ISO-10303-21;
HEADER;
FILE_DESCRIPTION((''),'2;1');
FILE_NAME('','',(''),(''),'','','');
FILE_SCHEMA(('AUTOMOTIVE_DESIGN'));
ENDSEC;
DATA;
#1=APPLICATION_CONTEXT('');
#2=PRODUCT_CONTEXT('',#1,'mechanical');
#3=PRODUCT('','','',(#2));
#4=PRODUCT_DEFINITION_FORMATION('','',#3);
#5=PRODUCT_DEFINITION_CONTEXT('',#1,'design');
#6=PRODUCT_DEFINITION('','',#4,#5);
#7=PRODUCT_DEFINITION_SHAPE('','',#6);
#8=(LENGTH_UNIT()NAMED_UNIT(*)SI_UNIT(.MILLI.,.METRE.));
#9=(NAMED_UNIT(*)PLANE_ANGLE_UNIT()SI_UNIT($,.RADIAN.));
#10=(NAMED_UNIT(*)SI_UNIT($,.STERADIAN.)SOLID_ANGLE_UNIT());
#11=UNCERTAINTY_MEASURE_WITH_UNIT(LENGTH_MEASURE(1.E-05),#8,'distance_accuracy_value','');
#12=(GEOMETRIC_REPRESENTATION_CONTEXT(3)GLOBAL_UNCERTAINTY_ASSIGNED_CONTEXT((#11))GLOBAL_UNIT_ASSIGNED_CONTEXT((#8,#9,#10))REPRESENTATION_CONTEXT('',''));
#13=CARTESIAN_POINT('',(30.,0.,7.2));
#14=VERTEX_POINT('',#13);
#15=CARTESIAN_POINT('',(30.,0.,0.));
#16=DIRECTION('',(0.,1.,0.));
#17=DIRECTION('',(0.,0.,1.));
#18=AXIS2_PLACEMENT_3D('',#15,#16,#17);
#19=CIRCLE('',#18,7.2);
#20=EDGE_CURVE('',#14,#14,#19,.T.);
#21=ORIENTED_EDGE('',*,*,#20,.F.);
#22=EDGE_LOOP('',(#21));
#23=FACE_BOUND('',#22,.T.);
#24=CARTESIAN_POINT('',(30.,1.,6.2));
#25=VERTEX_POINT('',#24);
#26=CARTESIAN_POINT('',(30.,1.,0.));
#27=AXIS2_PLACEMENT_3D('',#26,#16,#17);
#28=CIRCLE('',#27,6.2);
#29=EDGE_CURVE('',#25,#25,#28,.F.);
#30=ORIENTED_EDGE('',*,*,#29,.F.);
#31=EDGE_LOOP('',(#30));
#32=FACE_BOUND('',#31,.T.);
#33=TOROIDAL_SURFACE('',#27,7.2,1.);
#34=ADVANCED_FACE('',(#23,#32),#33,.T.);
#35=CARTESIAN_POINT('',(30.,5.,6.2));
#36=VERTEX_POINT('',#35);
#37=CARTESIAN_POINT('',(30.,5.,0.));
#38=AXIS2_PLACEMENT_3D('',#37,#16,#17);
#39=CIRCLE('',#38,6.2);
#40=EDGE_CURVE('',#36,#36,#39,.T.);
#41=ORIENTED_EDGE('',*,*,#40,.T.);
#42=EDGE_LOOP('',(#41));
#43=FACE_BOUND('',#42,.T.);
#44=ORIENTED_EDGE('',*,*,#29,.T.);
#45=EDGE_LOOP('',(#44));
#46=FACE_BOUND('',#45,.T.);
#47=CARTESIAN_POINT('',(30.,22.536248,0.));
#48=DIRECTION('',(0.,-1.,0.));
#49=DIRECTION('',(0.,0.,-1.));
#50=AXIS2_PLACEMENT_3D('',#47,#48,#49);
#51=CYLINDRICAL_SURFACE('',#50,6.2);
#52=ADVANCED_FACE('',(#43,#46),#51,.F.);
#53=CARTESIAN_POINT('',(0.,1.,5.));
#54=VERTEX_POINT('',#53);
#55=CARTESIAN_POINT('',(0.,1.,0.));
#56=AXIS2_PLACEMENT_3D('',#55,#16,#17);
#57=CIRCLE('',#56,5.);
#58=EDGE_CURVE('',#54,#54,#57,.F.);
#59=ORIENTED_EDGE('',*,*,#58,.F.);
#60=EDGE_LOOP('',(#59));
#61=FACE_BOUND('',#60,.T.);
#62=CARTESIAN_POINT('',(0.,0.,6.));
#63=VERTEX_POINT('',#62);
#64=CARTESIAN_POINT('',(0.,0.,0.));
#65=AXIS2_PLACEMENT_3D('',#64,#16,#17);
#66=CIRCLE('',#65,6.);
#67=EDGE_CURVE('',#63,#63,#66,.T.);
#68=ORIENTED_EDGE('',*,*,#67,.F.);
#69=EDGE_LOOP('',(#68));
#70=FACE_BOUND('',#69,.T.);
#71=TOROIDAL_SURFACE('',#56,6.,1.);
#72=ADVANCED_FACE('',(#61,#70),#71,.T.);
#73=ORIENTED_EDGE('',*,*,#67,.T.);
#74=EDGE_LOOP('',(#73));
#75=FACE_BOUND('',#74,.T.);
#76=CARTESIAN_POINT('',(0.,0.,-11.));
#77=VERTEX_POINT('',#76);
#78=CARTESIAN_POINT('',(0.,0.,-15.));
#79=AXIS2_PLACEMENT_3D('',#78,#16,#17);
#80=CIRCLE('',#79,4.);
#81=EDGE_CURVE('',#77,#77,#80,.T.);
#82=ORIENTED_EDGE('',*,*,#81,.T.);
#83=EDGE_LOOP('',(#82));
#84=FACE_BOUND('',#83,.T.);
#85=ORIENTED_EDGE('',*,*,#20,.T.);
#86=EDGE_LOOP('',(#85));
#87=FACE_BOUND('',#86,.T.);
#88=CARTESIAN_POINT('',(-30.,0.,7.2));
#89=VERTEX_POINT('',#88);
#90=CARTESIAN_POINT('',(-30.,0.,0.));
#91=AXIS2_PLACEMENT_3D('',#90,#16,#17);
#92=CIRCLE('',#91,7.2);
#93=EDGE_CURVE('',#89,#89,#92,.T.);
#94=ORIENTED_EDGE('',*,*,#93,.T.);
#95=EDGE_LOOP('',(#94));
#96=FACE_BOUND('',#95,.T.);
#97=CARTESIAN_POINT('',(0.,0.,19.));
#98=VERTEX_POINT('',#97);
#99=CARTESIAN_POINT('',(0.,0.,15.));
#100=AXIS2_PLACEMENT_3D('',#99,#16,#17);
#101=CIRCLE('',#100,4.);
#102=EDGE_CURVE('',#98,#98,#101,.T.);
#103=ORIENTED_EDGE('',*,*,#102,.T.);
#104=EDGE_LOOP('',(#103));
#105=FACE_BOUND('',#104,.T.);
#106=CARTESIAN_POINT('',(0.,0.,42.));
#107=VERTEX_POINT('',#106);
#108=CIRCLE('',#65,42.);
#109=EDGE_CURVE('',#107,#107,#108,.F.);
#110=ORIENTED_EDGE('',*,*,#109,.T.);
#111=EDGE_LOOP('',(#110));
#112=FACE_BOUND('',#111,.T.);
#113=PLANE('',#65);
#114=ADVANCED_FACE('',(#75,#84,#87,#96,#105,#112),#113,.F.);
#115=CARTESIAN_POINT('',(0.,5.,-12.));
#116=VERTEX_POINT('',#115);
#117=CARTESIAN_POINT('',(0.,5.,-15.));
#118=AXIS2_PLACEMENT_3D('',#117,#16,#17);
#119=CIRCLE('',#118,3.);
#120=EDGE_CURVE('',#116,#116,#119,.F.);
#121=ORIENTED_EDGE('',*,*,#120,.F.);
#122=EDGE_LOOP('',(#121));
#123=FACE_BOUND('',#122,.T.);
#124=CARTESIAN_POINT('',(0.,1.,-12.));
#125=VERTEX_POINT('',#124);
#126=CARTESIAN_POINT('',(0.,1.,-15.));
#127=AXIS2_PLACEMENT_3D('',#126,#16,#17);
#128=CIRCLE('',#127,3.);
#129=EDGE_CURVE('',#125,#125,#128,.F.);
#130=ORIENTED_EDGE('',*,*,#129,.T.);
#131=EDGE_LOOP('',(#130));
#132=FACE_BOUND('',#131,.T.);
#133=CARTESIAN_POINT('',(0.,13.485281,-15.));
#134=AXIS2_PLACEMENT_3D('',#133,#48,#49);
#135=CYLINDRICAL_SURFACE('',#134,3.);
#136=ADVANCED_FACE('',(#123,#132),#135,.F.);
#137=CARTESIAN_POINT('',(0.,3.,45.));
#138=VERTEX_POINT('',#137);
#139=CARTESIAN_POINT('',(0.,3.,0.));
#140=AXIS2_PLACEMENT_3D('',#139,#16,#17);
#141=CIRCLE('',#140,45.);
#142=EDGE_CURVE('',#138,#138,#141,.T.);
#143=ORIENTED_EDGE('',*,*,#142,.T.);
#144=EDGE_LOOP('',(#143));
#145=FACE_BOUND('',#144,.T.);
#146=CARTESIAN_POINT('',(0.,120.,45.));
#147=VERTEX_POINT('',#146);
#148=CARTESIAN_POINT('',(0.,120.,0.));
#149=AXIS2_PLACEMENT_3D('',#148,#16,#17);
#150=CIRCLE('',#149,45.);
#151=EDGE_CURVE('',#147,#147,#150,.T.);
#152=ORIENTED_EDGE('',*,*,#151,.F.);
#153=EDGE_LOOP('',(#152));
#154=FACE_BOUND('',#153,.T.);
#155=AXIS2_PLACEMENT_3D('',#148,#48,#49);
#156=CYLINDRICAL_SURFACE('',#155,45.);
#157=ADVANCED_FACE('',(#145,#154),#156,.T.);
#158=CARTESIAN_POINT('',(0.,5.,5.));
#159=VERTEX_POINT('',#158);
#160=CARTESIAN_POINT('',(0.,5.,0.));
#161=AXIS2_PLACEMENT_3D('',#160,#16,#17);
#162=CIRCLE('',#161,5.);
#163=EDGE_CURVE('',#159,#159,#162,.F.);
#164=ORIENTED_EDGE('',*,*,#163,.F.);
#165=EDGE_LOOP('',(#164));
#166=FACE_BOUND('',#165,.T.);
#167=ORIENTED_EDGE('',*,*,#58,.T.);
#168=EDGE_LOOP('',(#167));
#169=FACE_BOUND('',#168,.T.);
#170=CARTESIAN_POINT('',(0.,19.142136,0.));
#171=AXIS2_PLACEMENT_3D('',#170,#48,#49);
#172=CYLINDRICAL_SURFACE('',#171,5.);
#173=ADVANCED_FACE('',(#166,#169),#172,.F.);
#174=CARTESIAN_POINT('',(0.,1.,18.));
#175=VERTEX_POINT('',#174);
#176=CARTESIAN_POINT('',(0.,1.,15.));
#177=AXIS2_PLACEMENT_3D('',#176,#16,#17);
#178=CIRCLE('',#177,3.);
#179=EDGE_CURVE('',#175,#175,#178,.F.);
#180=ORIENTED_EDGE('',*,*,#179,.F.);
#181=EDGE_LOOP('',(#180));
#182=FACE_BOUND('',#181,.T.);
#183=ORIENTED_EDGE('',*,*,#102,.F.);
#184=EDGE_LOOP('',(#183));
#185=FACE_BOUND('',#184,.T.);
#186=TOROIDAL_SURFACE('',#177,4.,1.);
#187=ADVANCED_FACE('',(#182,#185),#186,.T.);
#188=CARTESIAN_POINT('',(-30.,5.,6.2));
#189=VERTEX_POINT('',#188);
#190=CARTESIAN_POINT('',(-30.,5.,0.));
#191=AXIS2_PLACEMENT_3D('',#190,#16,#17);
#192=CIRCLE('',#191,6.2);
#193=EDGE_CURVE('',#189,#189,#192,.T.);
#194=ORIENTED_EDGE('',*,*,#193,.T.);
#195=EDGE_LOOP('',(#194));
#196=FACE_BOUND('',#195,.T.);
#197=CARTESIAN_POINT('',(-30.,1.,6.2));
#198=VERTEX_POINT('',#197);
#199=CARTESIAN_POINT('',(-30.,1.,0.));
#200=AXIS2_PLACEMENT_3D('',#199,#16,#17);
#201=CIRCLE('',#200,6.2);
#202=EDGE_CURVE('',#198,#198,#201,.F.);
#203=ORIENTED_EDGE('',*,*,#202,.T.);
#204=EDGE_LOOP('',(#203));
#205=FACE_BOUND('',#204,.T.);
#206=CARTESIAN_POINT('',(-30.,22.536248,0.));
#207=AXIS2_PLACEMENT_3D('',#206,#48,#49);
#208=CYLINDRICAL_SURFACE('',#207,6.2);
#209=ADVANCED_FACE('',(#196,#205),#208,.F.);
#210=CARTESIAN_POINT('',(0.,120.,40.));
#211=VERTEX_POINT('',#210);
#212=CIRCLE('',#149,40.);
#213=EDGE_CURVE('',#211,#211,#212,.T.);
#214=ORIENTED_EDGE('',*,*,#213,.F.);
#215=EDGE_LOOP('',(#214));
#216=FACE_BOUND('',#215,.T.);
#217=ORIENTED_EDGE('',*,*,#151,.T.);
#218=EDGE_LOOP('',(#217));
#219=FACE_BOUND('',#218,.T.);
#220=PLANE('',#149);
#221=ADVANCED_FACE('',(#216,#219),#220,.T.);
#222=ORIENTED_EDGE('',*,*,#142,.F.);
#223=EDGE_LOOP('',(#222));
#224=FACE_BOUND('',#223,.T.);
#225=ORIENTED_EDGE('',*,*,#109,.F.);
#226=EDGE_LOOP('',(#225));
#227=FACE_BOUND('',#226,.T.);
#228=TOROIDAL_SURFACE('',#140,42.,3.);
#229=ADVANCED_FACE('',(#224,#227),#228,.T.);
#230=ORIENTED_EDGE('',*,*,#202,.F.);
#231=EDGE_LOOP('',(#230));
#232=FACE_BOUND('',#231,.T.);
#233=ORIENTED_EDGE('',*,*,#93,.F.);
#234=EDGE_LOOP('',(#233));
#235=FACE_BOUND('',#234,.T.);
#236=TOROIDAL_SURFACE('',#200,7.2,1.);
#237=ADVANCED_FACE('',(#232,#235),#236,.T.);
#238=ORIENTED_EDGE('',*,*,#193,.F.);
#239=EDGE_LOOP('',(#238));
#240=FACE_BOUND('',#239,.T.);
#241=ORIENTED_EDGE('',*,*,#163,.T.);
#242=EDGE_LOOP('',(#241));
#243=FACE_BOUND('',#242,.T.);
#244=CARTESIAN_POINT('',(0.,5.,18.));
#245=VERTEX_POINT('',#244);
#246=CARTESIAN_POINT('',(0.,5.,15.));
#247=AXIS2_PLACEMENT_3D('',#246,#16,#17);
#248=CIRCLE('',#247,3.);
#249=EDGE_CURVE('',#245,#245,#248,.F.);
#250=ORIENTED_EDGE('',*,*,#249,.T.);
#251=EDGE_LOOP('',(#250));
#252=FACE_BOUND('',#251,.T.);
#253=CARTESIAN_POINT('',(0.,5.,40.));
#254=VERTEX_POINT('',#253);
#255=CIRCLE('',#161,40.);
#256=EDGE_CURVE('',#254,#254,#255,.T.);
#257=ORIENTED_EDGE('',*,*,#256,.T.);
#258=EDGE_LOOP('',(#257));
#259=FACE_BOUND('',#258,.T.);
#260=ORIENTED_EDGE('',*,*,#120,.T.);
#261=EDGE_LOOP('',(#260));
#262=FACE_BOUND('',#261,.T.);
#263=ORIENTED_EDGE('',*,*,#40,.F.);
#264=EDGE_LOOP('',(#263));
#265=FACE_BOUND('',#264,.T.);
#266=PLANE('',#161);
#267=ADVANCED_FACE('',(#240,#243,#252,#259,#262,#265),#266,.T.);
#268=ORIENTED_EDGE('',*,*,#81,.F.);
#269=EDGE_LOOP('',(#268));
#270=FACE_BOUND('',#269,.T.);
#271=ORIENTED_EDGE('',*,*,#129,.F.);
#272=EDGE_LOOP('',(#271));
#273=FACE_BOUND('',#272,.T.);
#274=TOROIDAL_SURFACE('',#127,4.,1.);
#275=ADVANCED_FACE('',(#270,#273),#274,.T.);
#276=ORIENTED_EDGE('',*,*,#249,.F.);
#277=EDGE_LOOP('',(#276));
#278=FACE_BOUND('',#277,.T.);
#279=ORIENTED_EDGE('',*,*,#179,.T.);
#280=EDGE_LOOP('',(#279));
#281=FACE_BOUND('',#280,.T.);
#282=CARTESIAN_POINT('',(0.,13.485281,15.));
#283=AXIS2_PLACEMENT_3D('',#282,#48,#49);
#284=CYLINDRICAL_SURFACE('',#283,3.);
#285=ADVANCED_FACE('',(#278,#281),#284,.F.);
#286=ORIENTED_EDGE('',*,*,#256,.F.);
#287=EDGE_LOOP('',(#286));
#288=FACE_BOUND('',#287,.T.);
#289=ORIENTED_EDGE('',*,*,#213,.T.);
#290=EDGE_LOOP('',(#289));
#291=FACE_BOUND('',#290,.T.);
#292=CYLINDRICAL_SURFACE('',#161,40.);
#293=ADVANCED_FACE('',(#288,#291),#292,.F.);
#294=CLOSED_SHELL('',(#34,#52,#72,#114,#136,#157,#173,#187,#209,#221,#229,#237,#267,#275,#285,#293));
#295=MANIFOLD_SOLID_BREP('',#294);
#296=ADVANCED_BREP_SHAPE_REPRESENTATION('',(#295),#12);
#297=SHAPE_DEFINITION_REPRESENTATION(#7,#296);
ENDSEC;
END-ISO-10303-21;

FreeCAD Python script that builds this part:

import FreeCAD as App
import Part
import Sketcher


def edges_at(feature, points):
    """Names of the edges that pass closest to the given points."""
    edges = feature.Shape.Edges
    near = lambda p: min(range(len(edges)), key=lambda i: edges[i].distToShape(Part.Vertex(*p))[0])
    return sorted({f"Edge{near(p) + 1}" for p in points})

doc = App.newDocument("Part")
body = doc.addObject("PartDesign::Body", "Body")

sketch1 = doc.addObject("Sketcher::SketchObject", "Sketch")
body.addObject(sketch1)
sketch1.AttachmentSupport = (doc.XZ_Plane, [""])
sketch1.MapMode = "FlatFace"
sketch1.addGeometry(Part.Circle(App.Vector(0, 0, 0), App.Vector(0, 0, 1), 45), False)
sketch1.addConstraint(Sketcher.Constraint("Coincident", 0, 3, -1, 1))
sketch1.addConstraint(Sketcher.Constraint("Diameter", 0, 90.0))
pad1 = doc.addObject("PartDesign::Pad", "Pad")
body.addObject(pad1)
pad1.Profile = sketch1
pad1.Length = 120
pad1.Reversed = True

sketch2 = doc.addObject("Sketcher::SketchObject", "Sketch001")
body.addObject(sketch2)
sketch2.AttachmentSupport = (doc.XZ_Plane, [""])
sketch2.MapMode = "FlatFace"
sketch2.AttachmentOffset = App.Placement(App.Vector(0, 0, -120), App.Rotation())
sketch2.addGeometry(Part.Circle(App.Vector(0, 0, 0), App.Vector(0, 0, 1), 40), False)
sketch2.addConstraint(Sketcher.Constraint("Coincident", 0, 3, -1, 1))
sketch2.addConstraint(Sketcher.Constraint("Diameter", 0, 80.0))
pocket1 = doc.addObject("PartDesign::Pocket", "Pocket")
body.addObject(pocket1)
pocket1.Profile = sketch2
pocket1.Length = 115
pocket1.Reversed = True

sketch3 = doc.addObject("Sketcher::SketchObject", "Sketch002")
body.addObject(sketch3)
sketch3.AttachmentSupport = (doc.XZ_Plane, [""])
sketch3.MapMode = "FlatFace"
sketch3.addGeometry(Part.Circle(App.Vector(30, 0, 0), App.Vector(0, 0, 1), 6), False)
sketch3.addGeometry(Part.Circle(App.Vector(-30, 0, 0), App.Vector(0, 0, 1), 6), False)
sketch3.addConstraint(Sketcher.Constraint("Equal", 0, 1))
sketch3.addConstraint(Sketcher.Constraint("Symmetric", 0, 3, 1, 3, -1, 1))
sketch3.addConstraint(Sketcher.Constraint("PointOnObject", 0, 3, -1))
sketch3.addConstraint(Sketcher.Constraint("Diameter", 0, 12.4))
sketch3.addConstraint(Sketcher.Constraint("DistanceX", -1, 1, 0, 3, 30.0))
pocket2 = doc.addObject("PartDesign::Pocket", "Pocket001")
body.addObject(pocket2)
pocket2.Profile = sketch3
pocket2.Length = 5

sketch4 = doc.addObject("Sketcher::SketchObject", "Sketch003")
body.addObject(sketch4)
sketch4.AttachmentSupport = (doc.XZ_Plane, [""])
sketch4.MapMode = "FlatFace"
sketch4.addGeometry(Part.Circle(App.Vector(0, 15, 0), App.Vector(0, 0, 1), 3), False)
sketch4.addGeometry(Part.Circle(App.Vector(0, -15, 0), App.Vector(0, 0, 1), 3), False)
sketch4.addConstraint(Sketcher.Constraint("Equal", 0, 1))
sketch4.addConstraint(Sketcher.Constraint("Symmetric", 0, 3, 1, 3, -1, 1))
sketch4.addConstraint(Sketcher.Constraint("PointOnObject", 0, 3, -2))
sketch4.addConstraint(Sketcher.Constraint("Diameter", 0, 6.0))
sketch4.addConstraint(Sketcher.Constraint("DistanceY", -1, 1, 0, 3, 15.0))
pocket3 = doc.addObject("PartDesign::Pocket", "Pocket002")
body.addObject(pocket3)
pocket3.Profile = sketch4
pocket3.Length = 5
doc.recompute()

fillet = doc.addObject("PartDesign::Fillet", "Fillet")
body.addObject(fillet)
fillet.Base = (pocket3, edges_at(pocket3, [(-45, 0, 0)]))
fillet.Radius = 3
doc.recompute()

fillet2 = doc.addObject("PartDesign::Fillet", "Fillet001")
body.addObject(fillet2)
fillet2.Base = (fillet, edges_at(fillet, [(-36.2, 0, 0)]))
fillet2.Radius = 1
doc.recompute()

fillet3 = doc.addObject("PartDesign::Fillet", "Fillet002")
body.addObject(fillet3)
fillet3.Base = (fillet2, edges_at(fillet2, [(23.8, 0, 0)]))
fillet3.Radius = 1
doc.recompute()

fillet4 = doc.addObject("PartDesign::Fillet", "Fillet003")
body.addObject(fillet4)
fillet4.Base = (fillet3, edges_at(fillet3, [(-3, 0, -15)]))
fillet4.Radius = 1
doc.recompute()

fillet5 = doc.addObject("PartDesign::Fillet", "Fillet004")
body.addObject(fillet5)
fillet5.Base = (fillet4, edges_at(fillet4, [(-3, 0, 15)]))
fillet5.Radius = 1

sketch5 = doc.addObject("Sketcher::SketchObject", "Sketch004")
body.addObject(sketch5)
sketch5.AttachmentSupport = (doc.XZ_Plane, [""])
sketch5.MapMode = "FlatFace"
sketch5.addGeometry(Part.Circle(App.Vector(0, 0, 0), App.Vector(0, 0, 1), 5), False)
sketch5.addConstraint(Sketcher.Constraint("Coincident", 0, 3, -1, 1))
sketch5.addConstraint(Sketcher.Constraint("Diameter", 0, 10.0))
pocket4 = doc.addObject("PartDesign::Pocket", "Pocket003")
body.addObject(pocket4)
pocket4.Profile = sketch5
pocket4.Length = 5
doc.recompute()

fillet6 = doc.addObject("PartDesign::Fillet", "Fillet005")
body.addObject(fillet6)
fillet6.Base = (pocket4, edges_at(pocket4, [(-5, 0, 0)]))
fillet6.Radius = 1

doc.recompute()
